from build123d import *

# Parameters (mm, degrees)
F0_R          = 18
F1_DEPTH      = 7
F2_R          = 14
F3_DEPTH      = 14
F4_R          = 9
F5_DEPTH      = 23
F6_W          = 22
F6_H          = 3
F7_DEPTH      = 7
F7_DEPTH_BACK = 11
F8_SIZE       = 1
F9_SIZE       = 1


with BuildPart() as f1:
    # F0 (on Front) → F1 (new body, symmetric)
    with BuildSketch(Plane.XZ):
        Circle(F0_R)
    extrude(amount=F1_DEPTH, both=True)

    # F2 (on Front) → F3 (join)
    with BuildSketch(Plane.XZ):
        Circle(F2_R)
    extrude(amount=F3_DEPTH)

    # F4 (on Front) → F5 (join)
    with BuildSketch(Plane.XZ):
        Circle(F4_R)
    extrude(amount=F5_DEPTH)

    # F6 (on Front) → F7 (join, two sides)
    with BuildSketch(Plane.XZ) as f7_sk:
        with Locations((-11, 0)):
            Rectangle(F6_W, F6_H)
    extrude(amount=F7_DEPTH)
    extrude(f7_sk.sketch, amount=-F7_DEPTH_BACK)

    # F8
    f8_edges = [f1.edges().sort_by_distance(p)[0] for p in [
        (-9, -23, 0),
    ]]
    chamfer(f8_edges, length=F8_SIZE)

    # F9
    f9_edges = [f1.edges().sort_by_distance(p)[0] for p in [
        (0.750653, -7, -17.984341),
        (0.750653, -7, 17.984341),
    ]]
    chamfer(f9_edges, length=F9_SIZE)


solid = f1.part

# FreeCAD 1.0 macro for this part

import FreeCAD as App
import Part
import Sketcher


def edges_at(feature, points):
    """Names of the edges that pass closest to the given points."""
    edges = feature.Shape.Edges
    near = lambda p: min(range(len(edges)), key=lambda i: edges[i].distToShape(Part.Vertex(*p))[0])
    return sorted({f"Edge{near(p) + 1}" for p in points})


def add_polygon(sketch, points):
    """Adds a closed chain of lines whose ends are joined by coincident constraints."""
    first, n = sketch.GeometryCount, len(points)
    for a, b in zip(points, points[1:] + points[:1]):
        sketch.addGeometry(Part.LineSegment(App.Vector(*a, 0), App.Vector(*b, 0)), False)
    for i in range(n):
        sketch.addConstraint(Sketcher.Constraint("Coincident", first + i, 2, first + (i + 1) % n, 1))

doc = App.newDocument("Part")
body = doc.addObject("PartDesign::Body", "Body")

sketch1 = doc.addObject("Sketcher::SketchObject", "Sketch")
body.addObject(sketch1)
sketch1.AttachmentSupport = (doc.XZ_Plane, [""])
sketch1.MapMode = "FlatFace"
sketch1.addGeometry(Part.Circle(App.Vector(0, 0, 0), App.Vector(0, 0, 1), 18), False)
sketch1.addConstraint([
    Sketcher.Constraint("Coincident", 0, 3, -1, 1),
    Sketcher.Constraint("Diameter", 0, 36.0),
])
pad1 = doc.addObject("PartDesign::Pad", "Pad")
body.addObject(pad1)
pad1.Profile = sketch1
pad1.Length = 14
pad1.Midplane = True

sketch2 = doc.addObject("Sketcher::SketchObject", "Sketch001")
body.addObject(sketch2)
sketch2.AttachmentSupport = (doc.XZ_Plane, [""])
sketch2.MapMode = "FlatFace"
sketch2.addGeometry(Part.Circle(App.Vector(0, 0, 0), App.Vector(0, 0, 1), 14), False)
sketch2.addConstraint([
    Sketcher.Constraint("Coincident", 0, 3, -1, 1),
    Sketcher.Constraint("Diameter", 0, 28.0),
])
pad2 = doc.addObject("PartDesign::Pad", "Pad001")
body.addObject(pad2)
pad2.Profile = sketch2
pad2.Length = 14

sketch3 = doc.addObject("Sketcher::SketchObject", "Sketch002")
body.addObject(sketch3)
sketch3.AttachmentSupport = (doc.XZ_Plane, [""])
sketch3.MapMode = "FlatFace"
sketch3.addGeometry(Part.Circle(App.Vector(0, 0, 0), App.Vector(0, 0, 1), 9), False)
sketch3.addConstraint([
    Sketcher.Constraint("Coincident", 0, 3, -1, 1),
    Sketcher.Constraint("Diameter", 0, 18.0),
])
pad3 = doc.addObject("PartDesign::Pad", "Pad002")
body.addObject(pad3)
pad3.Profile = sketch3
pad3.Length = 23

sketch4 = doc.addObject("Sketcher::SketchObject", "Sketch003")
body.addObject(sketch4)
sketch4.AttachmentSupport = (doc.XZ_Plane, [""])
sketch4.MapMode = "FlatFace"
add_polygon(sketch4, [(-22, 1.5), (-22, -1.5), (0, -1.5), (0, 1.5)])
sketch4.addConstraint([
    Sketcher.Constraint("Vertical", 0),
    Sketcher.Constraint("Horizontal", 1),
    Sketcher.Constraint("Vertical", 2),
    Sketcher.Constraint("Horizontal", 3),
    Sketcher.Constraint("Symmetric", 1, 2, 2, 2, -1, 1),
    Sketcher.Constraint("DistanceX", 1, 1, 1, 2, 22.0),
    Sketcher.Constraint("DistanceY", 0, 2, 0, 1, 3.0),
])
pad4 = doc.addObject("PartDesign::Pad", "Pad003")
body.addObject(pad4)
pad4.Profile = sketch4
pad4.Type = "TwoLengths"
pad4.Length = 7
pad4.Length2 = 11
doc.recompute()

chamfer = doc.addObject("PartDesign::Chamfer", "Chamfer")
body.addObject(chamfer)
chamfer.Base = (pad4, edges_at(pad4, [(-9, -23, 0)]))
chamfer.Size = 1
doc.recompute()

chamfer2 = doc.addObject("PartDesign::Chamfer", "Chamfer001")
body.addObject(chamfer2)
chamfer2.Base = (chamfer, edges_at(chamfer, [(0.751, -7, -17.984), (0.751, -7, 17.984)]))
chamfer2.Size = 1

doc.recompute()
